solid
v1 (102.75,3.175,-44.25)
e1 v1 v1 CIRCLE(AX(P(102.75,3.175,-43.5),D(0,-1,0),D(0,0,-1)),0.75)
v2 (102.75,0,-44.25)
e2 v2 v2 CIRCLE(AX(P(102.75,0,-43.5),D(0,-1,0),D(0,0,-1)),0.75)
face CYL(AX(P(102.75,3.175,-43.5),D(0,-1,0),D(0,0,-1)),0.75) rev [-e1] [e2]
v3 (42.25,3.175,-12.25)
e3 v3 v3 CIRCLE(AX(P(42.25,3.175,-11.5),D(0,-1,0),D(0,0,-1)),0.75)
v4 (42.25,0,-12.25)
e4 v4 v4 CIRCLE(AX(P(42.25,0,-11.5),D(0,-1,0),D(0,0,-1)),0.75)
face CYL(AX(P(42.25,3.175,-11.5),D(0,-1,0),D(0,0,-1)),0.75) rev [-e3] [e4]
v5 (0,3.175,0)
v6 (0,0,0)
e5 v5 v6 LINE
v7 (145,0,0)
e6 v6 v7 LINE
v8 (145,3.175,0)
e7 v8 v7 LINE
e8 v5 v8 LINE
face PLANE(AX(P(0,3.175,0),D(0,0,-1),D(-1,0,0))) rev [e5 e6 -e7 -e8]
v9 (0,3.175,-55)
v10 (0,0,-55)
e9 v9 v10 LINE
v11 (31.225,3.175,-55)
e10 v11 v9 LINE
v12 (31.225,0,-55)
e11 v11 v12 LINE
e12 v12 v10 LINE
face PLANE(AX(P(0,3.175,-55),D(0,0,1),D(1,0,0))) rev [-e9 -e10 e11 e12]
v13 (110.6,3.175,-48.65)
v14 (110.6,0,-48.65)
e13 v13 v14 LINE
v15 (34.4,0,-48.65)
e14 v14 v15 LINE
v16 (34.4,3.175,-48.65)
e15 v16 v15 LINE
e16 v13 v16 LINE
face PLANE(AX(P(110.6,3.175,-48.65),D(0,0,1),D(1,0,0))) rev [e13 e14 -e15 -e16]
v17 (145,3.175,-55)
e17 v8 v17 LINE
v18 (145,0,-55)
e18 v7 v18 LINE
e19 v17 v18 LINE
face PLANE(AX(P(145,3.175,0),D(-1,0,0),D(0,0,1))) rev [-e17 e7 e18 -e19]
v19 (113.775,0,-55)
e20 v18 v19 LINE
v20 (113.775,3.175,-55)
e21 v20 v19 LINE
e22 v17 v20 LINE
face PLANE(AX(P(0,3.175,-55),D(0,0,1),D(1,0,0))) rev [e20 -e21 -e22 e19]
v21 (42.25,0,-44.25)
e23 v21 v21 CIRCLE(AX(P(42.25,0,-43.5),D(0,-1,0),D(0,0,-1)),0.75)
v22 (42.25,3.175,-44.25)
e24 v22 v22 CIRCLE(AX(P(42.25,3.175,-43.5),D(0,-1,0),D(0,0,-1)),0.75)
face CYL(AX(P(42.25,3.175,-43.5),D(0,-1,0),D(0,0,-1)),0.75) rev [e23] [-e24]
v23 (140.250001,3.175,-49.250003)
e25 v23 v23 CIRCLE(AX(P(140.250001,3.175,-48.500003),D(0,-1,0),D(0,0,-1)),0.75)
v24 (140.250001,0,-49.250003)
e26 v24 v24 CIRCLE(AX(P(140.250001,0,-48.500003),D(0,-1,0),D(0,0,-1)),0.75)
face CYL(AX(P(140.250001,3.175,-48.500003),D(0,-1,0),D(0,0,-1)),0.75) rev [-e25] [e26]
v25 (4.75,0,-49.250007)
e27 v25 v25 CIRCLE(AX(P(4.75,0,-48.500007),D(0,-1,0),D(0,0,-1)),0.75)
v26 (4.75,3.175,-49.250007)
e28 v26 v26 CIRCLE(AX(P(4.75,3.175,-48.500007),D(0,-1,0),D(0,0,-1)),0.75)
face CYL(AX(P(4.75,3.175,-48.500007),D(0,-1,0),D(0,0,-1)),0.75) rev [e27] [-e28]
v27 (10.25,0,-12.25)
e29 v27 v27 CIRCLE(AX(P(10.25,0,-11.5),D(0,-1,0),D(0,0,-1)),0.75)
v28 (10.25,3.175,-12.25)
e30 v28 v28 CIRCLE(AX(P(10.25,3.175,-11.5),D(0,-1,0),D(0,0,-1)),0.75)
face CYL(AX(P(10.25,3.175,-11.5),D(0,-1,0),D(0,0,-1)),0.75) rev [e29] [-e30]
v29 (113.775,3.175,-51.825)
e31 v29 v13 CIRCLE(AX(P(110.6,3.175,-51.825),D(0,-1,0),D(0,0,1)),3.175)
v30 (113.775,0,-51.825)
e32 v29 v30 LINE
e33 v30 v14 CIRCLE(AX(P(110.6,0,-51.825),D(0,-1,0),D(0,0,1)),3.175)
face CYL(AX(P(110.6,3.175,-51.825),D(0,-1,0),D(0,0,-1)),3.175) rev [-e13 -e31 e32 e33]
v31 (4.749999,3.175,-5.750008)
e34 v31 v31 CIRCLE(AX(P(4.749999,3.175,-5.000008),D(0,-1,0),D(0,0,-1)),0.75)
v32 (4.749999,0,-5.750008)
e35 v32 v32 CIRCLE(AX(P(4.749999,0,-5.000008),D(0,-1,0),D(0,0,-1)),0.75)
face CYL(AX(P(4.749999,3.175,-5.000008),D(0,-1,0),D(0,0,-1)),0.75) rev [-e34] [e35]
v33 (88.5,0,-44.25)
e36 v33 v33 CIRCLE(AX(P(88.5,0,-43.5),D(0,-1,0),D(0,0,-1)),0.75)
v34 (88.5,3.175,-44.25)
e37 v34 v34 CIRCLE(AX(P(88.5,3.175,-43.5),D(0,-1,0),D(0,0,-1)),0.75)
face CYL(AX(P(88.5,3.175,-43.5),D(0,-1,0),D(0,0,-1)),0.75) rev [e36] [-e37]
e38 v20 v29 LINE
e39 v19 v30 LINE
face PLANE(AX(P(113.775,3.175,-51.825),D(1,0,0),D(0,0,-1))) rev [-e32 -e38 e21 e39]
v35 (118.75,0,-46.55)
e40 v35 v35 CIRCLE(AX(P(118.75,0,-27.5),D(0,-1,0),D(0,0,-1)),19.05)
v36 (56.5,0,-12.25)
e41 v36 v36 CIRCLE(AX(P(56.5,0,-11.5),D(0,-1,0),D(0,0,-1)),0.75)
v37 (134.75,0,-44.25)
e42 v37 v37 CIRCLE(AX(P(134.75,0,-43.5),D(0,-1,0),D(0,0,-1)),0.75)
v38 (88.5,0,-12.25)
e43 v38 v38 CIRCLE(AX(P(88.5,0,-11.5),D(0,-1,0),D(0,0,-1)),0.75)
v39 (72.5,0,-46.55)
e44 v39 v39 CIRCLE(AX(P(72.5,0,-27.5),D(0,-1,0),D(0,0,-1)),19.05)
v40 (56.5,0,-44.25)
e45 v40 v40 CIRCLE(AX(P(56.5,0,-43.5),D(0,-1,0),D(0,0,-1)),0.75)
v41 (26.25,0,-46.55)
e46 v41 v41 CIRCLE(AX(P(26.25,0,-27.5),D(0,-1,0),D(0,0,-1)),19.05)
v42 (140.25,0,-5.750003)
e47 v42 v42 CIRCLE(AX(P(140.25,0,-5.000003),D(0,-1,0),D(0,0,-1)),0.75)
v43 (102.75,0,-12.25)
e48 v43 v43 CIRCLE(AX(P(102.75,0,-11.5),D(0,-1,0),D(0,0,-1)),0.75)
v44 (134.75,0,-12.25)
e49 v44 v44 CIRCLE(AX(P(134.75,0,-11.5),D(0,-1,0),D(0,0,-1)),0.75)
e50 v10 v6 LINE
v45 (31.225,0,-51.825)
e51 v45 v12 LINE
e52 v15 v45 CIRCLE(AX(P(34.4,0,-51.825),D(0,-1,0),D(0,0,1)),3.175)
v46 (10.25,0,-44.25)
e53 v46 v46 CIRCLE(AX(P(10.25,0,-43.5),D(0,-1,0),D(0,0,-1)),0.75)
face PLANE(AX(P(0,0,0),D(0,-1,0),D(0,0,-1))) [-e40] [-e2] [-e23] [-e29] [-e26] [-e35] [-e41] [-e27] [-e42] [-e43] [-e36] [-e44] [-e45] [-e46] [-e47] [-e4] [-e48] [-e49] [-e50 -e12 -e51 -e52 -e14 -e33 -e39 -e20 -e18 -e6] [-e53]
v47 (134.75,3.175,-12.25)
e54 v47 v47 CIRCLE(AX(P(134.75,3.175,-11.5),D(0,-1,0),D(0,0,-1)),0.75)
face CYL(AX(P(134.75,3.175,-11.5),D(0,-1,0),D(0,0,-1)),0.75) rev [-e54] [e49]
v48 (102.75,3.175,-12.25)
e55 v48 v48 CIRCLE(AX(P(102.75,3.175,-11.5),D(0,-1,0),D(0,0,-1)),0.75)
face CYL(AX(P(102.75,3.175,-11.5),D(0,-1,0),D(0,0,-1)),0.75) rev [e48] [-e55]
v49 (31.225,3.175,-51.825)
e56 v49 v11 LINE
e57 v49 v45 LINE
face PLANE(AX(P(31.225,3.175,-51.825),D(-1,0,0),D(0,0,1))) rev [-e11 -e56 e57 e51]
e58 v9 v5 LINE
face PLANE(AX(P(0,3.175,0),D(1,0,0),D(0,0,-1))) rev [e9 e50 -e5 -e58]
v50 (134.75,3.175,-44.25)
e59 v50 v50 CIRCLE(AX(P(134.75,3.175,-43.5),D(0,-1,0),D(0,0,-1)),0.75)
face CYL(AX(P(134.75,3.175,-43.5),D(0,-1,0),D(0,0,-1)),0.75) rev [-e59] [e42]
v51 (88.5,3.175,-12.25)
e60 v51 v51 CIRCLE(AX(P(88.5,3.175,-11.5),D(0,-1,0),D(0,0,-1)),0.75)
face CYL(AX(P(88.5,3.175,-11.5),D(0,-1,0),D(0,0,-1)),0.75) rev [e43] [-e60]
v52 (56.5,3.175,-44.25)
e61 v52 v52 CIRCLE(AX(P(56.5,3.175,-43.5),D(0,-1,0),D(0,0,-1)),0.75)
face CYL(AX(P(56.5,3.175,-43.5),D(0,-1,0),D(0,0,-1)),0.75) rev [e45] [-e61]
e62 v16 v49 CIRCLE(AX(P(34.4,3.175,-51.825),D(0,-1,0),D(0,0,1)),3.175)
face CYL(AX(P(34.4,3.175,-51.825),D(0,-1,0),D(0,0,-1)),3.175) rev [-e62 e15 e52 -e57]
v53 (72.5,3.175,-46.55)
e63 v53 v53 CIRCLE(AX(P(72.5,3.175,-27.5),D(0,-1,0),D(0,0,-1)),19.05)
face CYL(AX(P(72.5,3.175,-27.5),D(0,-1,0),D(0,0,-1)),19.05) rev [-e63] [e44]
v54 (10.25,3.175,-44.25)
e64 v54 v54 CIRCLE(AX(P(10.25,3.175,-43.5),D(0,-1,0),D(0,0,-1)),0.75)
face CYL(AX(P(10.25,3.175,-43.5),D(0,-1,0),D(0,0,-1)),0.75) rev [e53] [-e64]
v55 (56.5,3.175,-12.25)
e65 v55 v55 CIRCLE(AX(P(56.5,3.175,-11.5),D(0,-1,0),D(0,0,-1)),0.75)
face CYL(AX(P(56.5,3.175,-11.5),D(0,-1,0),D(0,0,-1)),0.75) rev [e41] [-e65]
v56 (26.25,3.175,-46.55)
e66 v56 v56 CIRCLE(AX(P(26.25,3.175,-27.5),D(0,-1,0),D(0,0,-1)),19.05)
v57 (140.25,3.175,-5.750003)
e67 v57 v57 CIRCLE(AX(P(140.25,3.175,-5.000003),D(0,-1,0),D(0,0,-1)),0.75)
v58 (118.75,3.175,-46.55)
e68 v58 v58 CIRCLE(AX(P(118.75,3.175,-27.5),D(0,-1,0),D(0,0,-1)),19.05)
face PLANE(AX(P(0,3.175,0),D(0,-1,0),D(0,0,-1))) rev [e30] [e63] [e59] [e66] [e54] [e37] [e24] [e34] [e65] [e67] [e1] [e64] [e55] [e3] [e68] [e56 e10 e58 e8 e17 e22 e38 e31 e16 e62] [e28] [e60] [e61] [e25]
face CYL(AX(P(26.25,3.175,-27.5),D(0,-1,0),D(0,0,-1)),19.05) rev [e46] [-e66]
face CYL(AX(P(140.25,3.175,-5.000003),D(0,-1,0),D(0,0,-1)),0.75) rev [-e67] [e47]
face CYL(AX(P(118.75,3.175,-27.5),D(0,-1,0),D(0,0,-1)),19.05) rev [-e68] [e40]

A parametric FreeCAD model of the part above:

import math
import FreeCAD as App
import Part
import Sketcher
Q = App.Units.Quantity

doc = App.newDocument("Part")
body = doc.addObject("PartDesign::Body", "Body")

# Sketch on XZ plane
sketch1 = body.newObject("Sketcher::SketchObject", "Sketch")
sketch1.AttachmentSupport = (doc.getObject("XZ_Plane"), [""])
sketch1.MapMode = "FlatFace"
sketch1.addGeometry([
    Part.LineSegment(App.Vector(0, -55, 0), App.Vector(0, 0, 0)),
    Part.LineSegment(App.Vector(0, 0, 0), App.Vector(145, 0, 0)),
    Part.LineSegment(App.Vector(145, 0, 0), App.Vector(145, -55, 0)),
    Part.LineSegment(App.Vector(145, -55, 0), App.Vector(0, -55, 0)),
], False)
sketch1.addConstraint([
    Sketcher.Constraint("Coincident", 0, 2, 1, 1),
    Sketcher.Constraint("Coincident", 1, 2, 2, 1),
    Sketcher.Constraint("Coincident", 2, 2, 3, 1),
    Sketcher.Constraint("Coincident", 3, 2, 0, 1),
    Sketcher.Constraint("Vertical", 0),
    Sketcher.Constraint("Horizontal", 1),
    Sketcher.Constraint("Vertical", 2),
    Sketcher.Constraint("Horizontal", 3),
    Sketcher.Constraint("Coincident", 0, 2, -1, 1),
    Sketcher.Constraint("DistanceX", 1, 1, 1, 2, Q("145 mm")),
    Sketcher.Constraint("DistanceY", 0, 1, 0, 2, Q("55 mm")),
])
pad1 = body.newObject("PartDesign::Pad", "Pad")
pad1.Profile = sketch1
pad1.Length = Q("0.125 in")
pad1.Reversed = True

# Sketch on XZ plane
sketch2 = body.newObject("Sketcher::SketchObject", "Sketch001")
sketch2.AttachmentSupport = (doc.getObject("XZ_Plane"), [""])
sketch2.MapMode = "FlatFace"
sketch2.addGeometry([
    Part.Circle(App.Vector(10.2, -11.5, 0), App.Vector(0, 0, 1), 0.8),  # 0
    Part.Circle(App.Vector(10.2, -43.5, 0), App.Vector(0, 0, 1), 0.8),  # 1
    Part.Circle(App.Vector(42.2, -43.5, 0), App.Vector(0, 0, 1), 0.8),  # 2
    Part.Circle(App.Vector(26.2, -27.5, 0), App.Vector(0, 0, 1), 19.1),  # 3
    Part.Circle(App.Vector(42.2, -11.5, 0), App.Vector(0, 0, 1), 0.8),  # 4
    Part.Circle(App.Vector(56.5, -11.5, 0), App.Vector(0, 0, 1), 0.8),  # 5
    Part.Circle(App.Vector(56.5, -43.5, 0), App.Vector(0, 0, 1), 0.8),  # 6
    Part.Circle(App.Vector(88.5, -43.5, 0), App.Vector(0, 0, 1), 0.8),  # 7
    Part.Circle(App.Vector(88.5, -11.5, 0), App.Vector(0, 0, 1), 0.8),  # 8
    Part.Circle(App.Vector(72.5, -27.5, 0), App.Vector(0, 0, 1), 19.1),  # 9
    Part.Circle(App.Vector(102.8, -11.5, 0), App.Vector(0, 0, 1), 0.8),  # 10
    Part.Circle(App.Vector(102.8, -43.5, 0), App.Vector(0, 0, 1), 0.8),  # 11
    Part.Circle(App.Vector(134.8, -43.5, 0), App.Vector(0, 0, 1), 0.8),  # 12
    Part.Circle(App.Vector(134.8, -11.5, 0), App.Vector(0, 0, 1), 0.8),  # 13
    Part.Circle(App.Vector(118.8, -27.5, 0), App.Vector(0, 0, 1), 19.1),  # 14
    Part.Circle(App.Vector(4.8, -48.5, 0), App.Vector(0, 0, 1), 0.8),  # 15
    Part.Circle(App.Vector(4.7, -5, 0), App.Vector(0, 0, 1), 0.8),  # 16
    Part.Circle(App.Vector(140.2, -5, 0), App.Vector(0, 0, 1), 0.8),  # 17
    Part.Circle(App.Vector(140.3, -48.5, 0), App.Vector(0, 0, 1), 0.8),  # 18
    Part.LineSegment(App.Vector(113.8, -55, 0), App.Vector(113.8, -51.8, 0)),  # 19
    Part.ArcOfCircle(Part.Circle(App.Vector(110.6, -51.8, 0), App.Vector(0, 0, 1), 3.2), math.radians(0), math.radians(90)),  # 20
    Part.LineSegment(App.Vector(110.6, -48.6, 0), App.Vector(34.4, -48.6, 0)),  # 21
    Part.ArcOfCircle(Part.Circle(App.Vector(34.4, -51.8, 0), App.Vector(0, 0, 1), 3.2), math.radians(90), math.radians(180)),  # 22
    Part.LineSegment(App.Vector(31.2, -51.8, 0), App.Vector(31.2, -55, 0)),  # 23
    Part.LineSegment(App.Vector(31.2, -55, 0), App.Vector(113.8, -55, 0)),  # 24
], False)
sketch2.addConstraint([
    Sketcher.Constraint("Tangent", 19, 2, 20, 1),
    Sketcher.Constraint("Tangent", 20, 2, 21, 1),
    Sketcher.Constraint("Tangent", 21, 2, 22, 1),
    Sketcher.Constraint("Tangent", 22, 2, 23, 1),
    Sketcher.Constraint("Coincident", 23, 2, 24, 1),
    Sketcher.Constraint("Coincident", 24, 2, 19, 1),
    Sketcher.Constraint("Vertical", 19),
    Sketcher.Constraint("Horizontal", 21),
    Sketcher.Constraint("Vertical", 23),
    Sketcher.Constraint("Horizontal", 24),
    Sketcher.Constraint("Equal", 0, 1),
    Sketcher.Constraint("Equal", 1, 2),
    Sketcher.Constraint("Equal", 2, 4),
    Sketcher.Constraint("Equal", 4, 5),
    Sketcher.Constraint("Equal", 5, 6),
    Sketcher.Constraint("Equal", 6, 7),
    Sketcher.Constraint("Equal", 7, 8),
    Sketcher.Constraint("Equal", 3, 9),
    Sketcher.Constraint("Equal", 8, 10),
    Sketcher.Constraint("Equal", 10, 11),
    Sketcher.Constraint("Equal", 11, 12),
    Sketcher.Constraint("Equal", 12, 13),
    Sketcher.Constraint("Equal", 9, 14),
    Sketcher.Constraint("Equal", 13, 15),
    Sketcher.Constraint("Equal", 15, 16),
    Sketcher.Constraint("Equal", 16, 17),
    Sketcher.Constraint("Equal", 17, 18),
    Sketcher.Constraint("Equal", 20, 22),
    Sketcher.Constraint("Horizontal", 1, 3, 2, 3),
    Sketcher.Constraint("Horizontal", 0, 3, 4, 3),
    Sketcher.Constraint("Horizontal", 4, 3, 5, 3),
    Sketcher.Constraint("Horizontal", 2, 3, 6, 3),
    Sketcher.Constraint("Horizontal", 6, 3, 7, 3),
    Sketcher.Constraint("Horizontal", 5, 3, 8, 3),
    Sketcher.Constraint("Horizontal", 3, 3, 9, 3),
    Sketcher.Constraint("Horizontal", 8, 3, 10, 3),
    Sketcher.Constraint("Horizontal", 7, 3, 11, 3),
    Sketcher.Constraint("Horizontal", 11, 3, 12, 3),
    Sketcher.Constraint("Horizontal", 10, 3, 13, 3),
    Sketcher.Constraint("Horizontal", 9, 3, 14, 3),
    Sketcher.Constraint("Vertical", 0, 3, 1, 3),
    Sketcher.Constraint("Vertical", 2, 3, 4, 3),
    Sketcher.Constraint("Vertical", 5, 3, 6, 3),
    Sketcher.Constraint("Vertical", 7, 3, 8, 3),
    Sketcher.Constraint("Vertical", 10, 3, 11, 3),
    Sketcher.Constraint("Vertical", 12, 3, 13, 3),
    Sketcher.Constraint("Vertical", 15, 3, 16, 3),
    Sketcher.Constraint("Vertical", 17, 3, 18, 3),
    Sketcher.Constraint("Diameter", 3, Q("1.5 in")),
    Sketcher.Constraint("DistanceX", 21, 2, 21, 1, Q("3 in")),
    Sketcher.Constraint("Radius", 20, Q("0.125 in")),
    Sketcher.Constraint("Diameter", 0, Q("1.5 mm")),
    Sketcher.Constraint("DistanceY", 19, 1, 19, 2, Q("0.125 in")),
    Sketcher.Constraint("DistanceX", -1, 1, 0, 3, Q("10.25 mm")),
    Sketcher.Constraint("DistanceY", 0, 3, -1, 1, Q("11.5 mm")),
    Sketcher.Constraint("DistanceY", 1, 3, -1, 1, Q("43.5 mm")),
    Sketcher.Constraint("DistanceX", -1, 1, 2, 3, Q("42.25 mm")),
    Sketcher.Constraint("DistanceX", -1, 1, 3, 3, Q("26.25 mm")),
    Sketcher.Constraint("DistanceY", 3, 3, -1, 1, Q("27.5 mm")),
    Sketcher.Constraint("DistanceX", -1, 1, 5, 3, Q("56.5 mm")),
    Sketcher.Constraint("DistanceX", -1, 1, 7, 3, Q("88.5 mm")),
    Sketcher.Constraint("DistanceX", -1, 1, 9, 3, Q("72.5 mm")),
    Sketcher.Constraint("DistanceX", -1, 1, 10, 3, Q("102.75 mm")),
    Sketcher.Constraint("DistanceX", -1, 1, 12, 3, Q("134.75 mm")),
    Sketcher.Constraint("DistanceX", -1, 1, 14, 3, Q("118.75 mm")),
    Sketcher.Constraint("DistanceX", -1, 1, 15, 3, Q("4.75 mm")),
    Sketcher.Constraint("DistanceX", -1, 1, 17, 3, Q("140.25 mm")),
    Sketcher.Constraint("DistanceX", -1, 1, 20, 3, Q("110.6 mm")),
    Sketcher.Constraint("DistanceY", 20, 3, -1, 1, Q("51.825 mm")),
    Sketcher.Constraint("DistanceY", 15, 3, 16, 3, Q("43.499999 mm")),
    Sketcher.Constraint("DistanceY", 18, 3, 17, 3, Q("43.499999 mm")),
    Sketcher.Constraint("DistanceY", 16, 3, -1, 1, Q("5.000008 mm")),
    Sketcher.Constraint("DistanceY", 17, 3, -1, 1, Q("5.000003 mm")),
])
pocket1 = body.newObject("PartDesign::Pocket", "Pocket")
pocket1.Profile = sketch2
pocket1.Type = "ThroughAll"

doc.recompute()
